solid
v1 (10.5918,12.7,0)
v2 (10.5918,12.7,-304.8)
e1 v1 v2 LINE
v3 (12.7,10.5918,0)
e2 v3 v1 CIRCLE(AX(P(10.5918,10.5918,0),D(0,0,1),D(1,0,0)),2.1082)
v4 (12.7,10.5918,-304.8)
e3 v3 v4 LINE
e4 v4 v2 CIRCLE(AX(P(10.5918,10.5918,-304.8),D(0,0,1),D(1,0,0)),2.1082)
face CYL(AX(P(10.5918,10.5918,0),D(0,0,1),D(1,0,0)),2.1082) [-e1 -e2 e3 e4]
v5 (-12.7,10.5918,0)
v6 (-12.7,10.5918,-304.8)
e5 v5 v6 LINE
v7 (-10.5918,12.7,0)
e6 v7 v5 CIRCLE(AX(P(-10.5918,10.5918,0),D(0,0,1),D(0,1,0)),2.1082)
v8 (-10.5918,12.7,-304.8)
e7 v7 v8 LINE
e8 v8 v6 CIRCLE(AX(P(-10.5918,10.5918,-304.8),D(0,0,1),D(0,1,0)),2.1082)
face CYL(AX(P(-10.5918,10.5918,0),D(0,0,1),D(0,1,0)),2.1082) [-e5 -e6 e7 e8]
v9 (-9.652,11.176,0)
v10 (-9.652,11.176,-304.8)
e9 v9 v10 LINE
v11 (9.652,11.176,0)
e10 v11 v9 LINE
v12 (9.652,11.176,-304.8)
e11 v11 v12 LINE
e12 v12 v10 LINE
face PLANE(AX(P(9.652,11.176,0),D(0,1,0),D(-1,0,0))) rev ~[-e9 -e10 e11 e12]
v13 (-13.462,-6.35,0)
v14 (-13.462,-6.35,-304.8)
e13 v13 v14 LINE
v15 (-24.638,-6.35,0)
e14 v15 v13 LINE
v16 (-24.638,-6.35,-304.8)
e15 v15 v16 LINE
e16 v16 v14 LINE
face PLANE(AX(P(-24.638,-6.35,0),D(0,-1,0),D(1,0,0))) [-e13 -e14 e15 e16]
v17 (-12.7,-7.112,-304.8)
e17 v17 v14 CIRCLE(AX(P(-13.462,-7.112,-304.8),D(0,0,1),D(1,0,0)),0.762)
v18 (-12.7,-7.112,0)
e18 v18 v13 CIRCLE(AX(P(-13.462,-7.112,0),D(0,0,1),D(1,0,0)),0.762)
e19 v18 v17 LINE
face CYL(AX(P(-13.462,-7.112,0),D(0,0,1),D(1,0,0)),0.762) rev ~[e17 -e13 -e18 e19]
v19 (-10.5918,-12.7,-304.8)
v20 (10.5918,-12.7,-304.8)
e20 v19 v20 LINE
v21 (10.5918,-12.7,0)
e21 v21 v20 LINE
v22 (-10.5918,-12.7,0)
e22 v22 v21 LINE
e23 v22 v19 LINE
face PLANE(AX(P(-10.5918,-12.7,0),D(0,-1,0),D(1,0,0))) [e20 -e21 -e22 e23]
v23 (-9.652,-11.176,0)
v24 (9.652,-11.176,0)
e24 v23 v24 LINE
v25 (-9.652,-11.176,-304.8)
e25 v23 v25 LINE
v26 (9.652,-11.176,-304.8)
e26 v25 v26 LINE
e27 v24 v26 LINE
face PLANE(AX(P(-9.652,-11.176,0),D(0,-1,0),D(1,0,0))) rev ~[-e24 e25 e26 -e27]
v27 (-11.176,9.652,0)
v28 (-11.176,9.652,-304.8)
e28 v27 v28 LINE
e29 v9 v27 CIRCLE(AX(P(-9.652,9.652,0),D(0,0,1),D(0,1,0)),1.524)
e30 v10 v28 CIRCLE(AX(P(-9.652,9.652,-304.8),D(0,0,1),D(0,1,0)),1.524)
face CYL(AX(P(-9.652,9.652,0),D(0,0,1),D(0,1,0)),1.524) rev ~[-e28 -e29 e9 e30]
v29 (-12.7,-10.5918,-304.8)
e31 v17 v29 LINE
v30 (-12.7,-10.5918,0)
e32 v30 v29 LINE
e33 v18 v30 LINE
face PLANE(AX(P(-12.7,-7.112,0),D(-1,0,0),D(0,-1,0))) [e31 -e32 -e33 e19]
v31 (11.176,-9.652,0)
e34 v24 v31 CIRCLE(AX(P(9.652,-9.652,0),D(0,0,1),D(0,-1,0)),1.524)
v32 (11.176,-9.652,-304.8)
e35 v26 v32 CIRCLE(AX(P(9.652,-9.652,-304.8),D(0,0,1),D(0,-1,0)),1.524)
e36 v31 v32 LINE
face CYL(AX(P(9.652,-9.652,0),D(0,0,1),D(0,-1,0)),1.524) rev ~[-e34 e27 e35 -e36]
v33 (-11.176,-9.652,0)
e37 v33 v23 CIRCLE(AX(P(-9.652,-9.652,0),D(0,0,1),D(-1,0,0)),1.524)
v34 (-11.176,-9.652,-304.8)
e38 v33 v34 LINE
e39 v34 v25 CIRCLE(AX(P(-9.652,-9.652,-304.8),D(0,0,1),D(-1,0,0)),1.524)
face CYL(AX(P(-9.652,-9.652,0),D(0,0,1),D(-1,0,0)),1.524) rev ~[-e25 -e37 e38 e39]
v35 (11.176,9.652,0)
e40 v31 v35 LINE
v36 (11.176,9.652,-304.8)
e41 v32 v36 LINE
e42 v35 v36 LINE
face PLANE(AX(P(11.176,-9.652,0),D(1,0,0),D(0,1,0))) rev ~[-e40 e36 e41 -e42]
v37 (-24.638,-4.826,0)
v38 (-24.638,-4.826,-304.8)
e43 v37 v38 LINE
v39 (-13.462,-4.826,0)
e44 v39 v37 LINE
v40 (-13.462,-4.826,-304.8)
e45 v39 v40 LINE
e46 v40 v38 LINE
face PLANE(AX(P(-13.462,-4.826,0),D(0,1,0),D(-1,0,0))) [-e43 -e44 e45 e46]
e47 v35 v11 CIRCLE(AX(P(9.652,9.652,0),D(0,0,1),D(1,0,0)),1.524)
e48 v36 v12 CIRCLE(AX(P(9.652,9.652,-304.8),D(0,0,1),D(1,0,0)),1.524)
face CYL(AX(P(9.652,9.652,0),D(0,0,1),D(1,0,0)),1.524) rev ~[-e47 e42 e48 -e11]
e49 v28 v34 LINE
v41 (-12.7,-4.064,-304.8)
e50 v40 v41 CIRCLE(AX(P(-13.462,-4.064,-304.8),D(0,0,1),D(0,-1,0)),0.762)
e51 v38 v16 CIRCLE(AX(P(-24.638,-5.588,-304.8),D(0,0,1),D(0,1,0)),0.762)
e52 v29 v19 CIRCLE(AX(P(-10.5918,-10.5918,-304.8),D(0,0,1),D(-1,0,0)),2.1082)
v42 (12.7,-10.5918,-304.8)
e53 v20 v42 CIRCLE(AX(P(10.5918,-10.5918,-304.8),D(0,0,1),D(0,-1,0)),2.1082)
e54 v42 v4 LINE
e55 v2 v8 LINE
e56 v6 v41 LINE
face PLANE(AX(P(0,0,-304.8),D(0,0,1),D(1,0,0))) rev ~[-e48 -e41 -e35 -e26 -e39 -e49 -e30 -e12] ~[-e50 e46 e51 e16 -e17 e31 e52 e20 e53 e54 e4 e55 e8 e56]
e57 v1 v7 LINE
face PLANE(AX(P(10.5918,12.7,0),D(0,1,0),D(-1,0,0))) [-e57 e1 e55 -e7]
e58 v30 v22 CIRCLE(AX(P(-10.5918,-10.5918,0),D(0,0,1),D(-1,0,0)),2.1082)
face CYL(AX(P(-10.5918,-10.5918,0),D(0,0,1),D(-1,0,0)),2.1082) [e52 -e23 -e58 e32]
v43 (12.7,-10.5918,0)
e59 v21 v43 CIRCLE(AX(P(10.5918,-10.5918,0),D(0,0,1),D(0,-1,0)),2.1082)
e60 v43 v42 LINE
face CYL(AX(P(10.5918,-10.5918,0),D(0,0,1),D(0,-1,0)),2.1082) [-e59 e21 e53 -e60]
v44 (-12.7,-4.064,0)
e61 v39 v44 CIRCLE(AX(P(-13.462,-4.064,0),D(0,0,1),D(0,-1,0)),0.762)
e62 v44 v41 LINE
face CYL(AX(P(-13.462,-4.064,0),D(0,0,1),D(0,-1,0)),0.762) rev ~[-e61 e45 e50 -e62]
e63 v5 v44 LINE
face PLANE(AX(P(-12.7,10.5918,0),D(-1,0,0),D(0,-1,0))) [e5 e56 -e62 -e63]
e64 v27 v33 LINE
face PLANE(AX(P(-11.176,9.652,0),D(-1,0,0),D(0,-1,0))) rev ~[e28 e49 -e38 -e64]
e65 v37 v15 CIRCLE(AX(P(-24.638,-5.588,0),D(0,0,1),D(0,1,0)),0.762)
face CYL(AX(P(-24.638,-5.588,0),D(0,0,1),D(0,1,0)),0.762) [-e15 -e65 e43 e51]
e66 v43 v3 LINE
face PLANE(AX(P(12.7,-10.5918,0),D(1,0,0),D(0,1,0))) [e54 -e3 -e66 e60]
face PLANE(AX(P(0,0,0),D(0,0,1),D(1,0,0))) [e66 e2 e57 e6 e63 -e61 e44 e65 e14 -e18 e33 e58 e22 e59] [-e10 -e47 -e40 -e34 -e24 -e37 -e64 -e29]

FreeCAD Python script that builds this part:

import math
import FreeCAD as App
import Part
import Sketcher
Q = App.Units.Quantity

doc = App.newDocument("Part")
body = doc.addObject("PartDesign::Body", "Body")

# Sketch on XY plane
sketch1 = body.newObject("Sketcher::SketchObject", "Sketch")
sketch1.AttachmentSupport = (doc.getObject("XY_Plane"), [""])
sketch1.MapMode = "FlatFace"
sketch1.addGeometry(Part.ArcOfCircle(Part.Circle(App.Vector(-13.5, -7.1, 0), App.Vector(0, 0, 1), 0.8), math.radians(0), math.radians(90)), False)
sketch1.addGeometry(Part.LineSegment(App.Vector(-12.7, -7.1, 0), App.Vector(-12.7, -10.6, 0)), False)
sketch1.addGeometry(Part.ArcOfCircle(Part.Circle(App.Vector(-10.6, -10.6, 0), App.Vector(0, 0, 1), 2.1), math.radians(180), math.radians(270)), False)
sketch1.addGeometry(Part.LineSegment(App.Vector(-10.6, -12.7, 0), App.Vector(10.6, -12.7, 0)), False)
sketch1.addGeometry(Part.ArcOfCircle(Part.Circle(App.Vector(10.6, -10.6, 0), App.Vector(0, 0, 1), 2.1), math.radians(-90), math.radians(0)), False)
sketch1.addGeometry(Part.LineSegment(App.Vector(12.7, -10.6, 0), App.Vector(12.7, 10.6, 0)), False)
sketch1.addGeometry(Part.ArcOfCircle(Part.Circle(App.Vector(10.6, 10.6, 0), App.Vector(0, 0, 1), 2.1), math.radians(0), math.radians(90)), False)
sketch1.addGeometry(Part.LineSegment(App.Vector(10.6, 12.7, 0), App.Vector(-10.6, 12.7, 0)), False)
sketch1.addGeometry(Part.ArcOfCircle(Part.Circle(App.Vector(-10.6, 10.6, 0), App.Vector(0, 0, 1), 2.1), math.radians(90), math.radians(180)), False)
sketch1.addGeometry(Part.LineSegment(App.Vector(-12.7, 10.6, 0), App.Vector(-12.7, -4.1, 0)), False)
sketch1.addGeometry(Part.ArcOfCircle(Part.Circle(App.Vector(-13.5, -4.1, 0), App.Vector(0, 0, 1), 0.8), math.radians(-90), math.radians(0)), False)
sketch1.addGeometry(Part.LineSegment(App.Vector(-13.5, -4.8, 0), App.Vector(-24.6, -4.8, 0)), False)
sketch1.addGeometry(Part.ArcOfCircle(Part.Circle(App.Vector(-24.6, -5.6, 0), App.Vector(0, 0, 1), 0.8), math.radians(90), math.radians(270)), False)
sketch1.addGeometry(Part.LineSegment(App.Vector(-24.6, -6.3, 0), App.Vector(-13.5, -6.3, 0)), False)
sketch1.addGeometry(Part.ArcOfCircle(Part.Circle(App.Vector(9.7, -9.7, 0), App.Vector(0, 0, 1), 1.5), math.radians(-90), math.radians(0)), False)
sketch1.addGeometry(Part.LineSegment(App.Vector(9.7, -11.2, 0), App.Vector(-9.7, -11.2, 0)), False)
sketch1.addGeometry(Part.ArcOfCircle(Part.Circle(App.Vector(-9.7, -9.7, 0), App.Vector(0, 0, 1), 1.5), math.radians(180), math.radians(270)), False)
sketch1.addGeometry(Part.LineSegment(App.Vector(-11.2, -9.7, 0), App.Vector(-11.2, 9.7, 0)), False)
sketch1.addGeometry(Part.ArcOfCircle(Part.Circle(App.Vector(-9.7, 9.7, 0), App.Vector(0, 0, 1), 1.5), math.radians(90), math.radians(180)), False)
sketch1.addGeometry(Part.LineSegment(App.Vector(-9.7, 11.2, 0), App.Vector(9.7, 11.2, 0)), False)
sketch1.addGeometry(Part.ArcOfCircle(Part.Circle(App.Vector(9.7, 9.7, 0), App.Vector(0, 0, 1), 1.5), math.radians(0), math.radians(90)), False)
sketch1.addGeometry(Part.LineSegment(App.Vector(11.2, 9.7, 0), App.Vector(11.2, -9.7, 0)), False)
sketch1.addConstraint(Sketcher.Constraint("Tangent", 0, 1, 1, 1))
sketch1.addConstraint(Sketcher.Constraint("Tangent", 1, 2, 2, 1))
sketch1.addConstraint(Sketcher.Constraint("Tangent", 2, 2, 3, 1))
sketch1.addConstraint(Sketcher.Constraint("Tangent", 3, 2, 4, 1))
sketch1.addConstraint(Sketcher.Constraint("Tangent", 4, 2, 5, 1))
sketch1.addConstraint(Sketcher.Constraint("Tangent", 5, 2, 6, 1))
sketch1.addConstraint(Sketcher.Constraint("Tangent", 6, 2, 7, 1))
sketch1.addConstraint(Sketcher.Constraint("Tangent", 7, 2, 8, 1))
sketch1.addConstraint(Sketcher.Constraint("Tangent", 8, 2, 9, 1))
sketch1.addConstraint(Sketcher.Constraint("Tangent", 9, 2, 10, 2))
sketch1.addConstraint(Sketcher.Constraint("Tangent", 10, 1, 11, 1))
sketch1.addConstraint(Sketcher.Constraint("Tangent", 11, 2, 12, 1))
sketch1.addConstraint(Sketcher.Constraint("Tangent", 12, 2, 13, 1))
sketch1.addConstraint(Sketcher.Constraint("Tangent", 13, 2, 0, 2))
sketch1.addConstraint(Sketcher.Constraint("Tangent", 14, 1, 15, 1))
sketch1.addConstraint(Sketcher.Constraint("Tangent", 15, 2, 16, 2))
sketch1.addConstraint(Sketcher.Constraint("Tangent", 16, 1, 17, 1))
sketch1.addConstraint(Sketcher.Constraint("Tangent", 17, 2, 18, 2))
sketch1.addConstraint(Sketcher.Constraint("Tangent", 18, 1, 19, 1))
sketch1.addConstraint(Sketcher.Constraint("Tangent", 19, 2, 20, 2))
sketch1.addConstraint(Sketcher.Constraint("Tangent", 20, 1, 21, 1))
sketch1.addConstraint(Sketcher.Constraint("Tangent", 21, 2, 14, 2))
sketch1.addConstraint(Sketcher.Constraint("Vertical", 1))
sketch1.addConstraint(Sketcher.Constraint("Horizontal", 3))
sketch1.addConstraint(Sketcher.Constraint("Vertical", 5))
sketch1.addConstraint(Sketcher.Constraint("Horizontal", 7))
sketch1.addConstraint(Sketcher.Constraint("Vertical", 9))
sketch1.addConstraint(Sketcher.Constraint("Horizontal", 11))
sketch1.addConstraint(Sketcher.Constraint("Horizontal", 13))
sketch1.addConstraint(Sketcher.Constraint("Horizontal", 15))
sketch1.addConstraint(Sketcher.Constraint("Vertical", 17))
sketch1.addConstraint(Sketcher.Constraint("Horizontal", 19))
sketch1.addConstraint(Sketcher.Constraint("Vertical", 21))
sketch1.addConstraint(Sketcher.Constraint("Equal", 2, 4))
sketch1.addConstraint(Sketcher.Constraint("Equal", 4, 6))
sketch1.addConstraint(Sketcher.Constraint("Equal", 6, 8))
sketch1.addConstraint(Sketcher.Constraint("Equal", 0, 10))
sketch1.addConstraint(Sketcher.Constraint("Equal", 10, 12))
sketch1.addConstraint(Sketcher.Constraint("Equal", 14, 16))
sketch1.addConstraint(Sketcher.Constraint("Equal", 16, 18))
sketch1.addConstraint(Sketcher.Constraint("Equal", 18, 20))
sketch1.addConstraint(Sketcher.Constraint("Symmetric", 2, 3, 6, 3, -1, 1))
sketch1.addConstraint(Sketcher.Constraint("Symmetric", 14, 3, 18, 3, -1, 1))
sketch1.addConstraint(Sketcher.Constraint("Vertical", 2, 3, 8, 3))
sketch1.addConstraint(Sketcher.Constraint("Equal", 7, 5))
sketch1.addConstraint(Sketcher.Constraint("Equal", 19, 17))
sketch1.addConstraint(Sketcher.Constraint("Radius", 0, Q("0.03 in")))
sketch1.addConstraint(Sketcher.Constraint("Radius", 14, Q("0.06 in")))
sketch1.addConstraint(Sketcher.Constraint("Radius", 2, Q("0.083 in")))
sketch1.addConstraint(Sketcher.Constraint("DistanceX", 11, 2, 11, 1, Q("0.44 in")))
sketch1.addConstraint(Sketcher.Constraint("DistanceX", 15, 2, 15, 1, Q("0.76 in")))
sketch1.addConstraint(Sketcher.Constraint("DistanceX", 0, 1, -1, 1, Q("0.5 in")))
sketch1.addConstraint(Sketcher.Constraint("DistanceY", 14, 3, 0, 3, Q("0.1 in")))
pad1 = body.newObject("PartDesign::Pad", "Pad")
pad1.Profile = sketch1
pad1.Length = Q("12 in")
pad1.Reversed = True

doc.recompute()
